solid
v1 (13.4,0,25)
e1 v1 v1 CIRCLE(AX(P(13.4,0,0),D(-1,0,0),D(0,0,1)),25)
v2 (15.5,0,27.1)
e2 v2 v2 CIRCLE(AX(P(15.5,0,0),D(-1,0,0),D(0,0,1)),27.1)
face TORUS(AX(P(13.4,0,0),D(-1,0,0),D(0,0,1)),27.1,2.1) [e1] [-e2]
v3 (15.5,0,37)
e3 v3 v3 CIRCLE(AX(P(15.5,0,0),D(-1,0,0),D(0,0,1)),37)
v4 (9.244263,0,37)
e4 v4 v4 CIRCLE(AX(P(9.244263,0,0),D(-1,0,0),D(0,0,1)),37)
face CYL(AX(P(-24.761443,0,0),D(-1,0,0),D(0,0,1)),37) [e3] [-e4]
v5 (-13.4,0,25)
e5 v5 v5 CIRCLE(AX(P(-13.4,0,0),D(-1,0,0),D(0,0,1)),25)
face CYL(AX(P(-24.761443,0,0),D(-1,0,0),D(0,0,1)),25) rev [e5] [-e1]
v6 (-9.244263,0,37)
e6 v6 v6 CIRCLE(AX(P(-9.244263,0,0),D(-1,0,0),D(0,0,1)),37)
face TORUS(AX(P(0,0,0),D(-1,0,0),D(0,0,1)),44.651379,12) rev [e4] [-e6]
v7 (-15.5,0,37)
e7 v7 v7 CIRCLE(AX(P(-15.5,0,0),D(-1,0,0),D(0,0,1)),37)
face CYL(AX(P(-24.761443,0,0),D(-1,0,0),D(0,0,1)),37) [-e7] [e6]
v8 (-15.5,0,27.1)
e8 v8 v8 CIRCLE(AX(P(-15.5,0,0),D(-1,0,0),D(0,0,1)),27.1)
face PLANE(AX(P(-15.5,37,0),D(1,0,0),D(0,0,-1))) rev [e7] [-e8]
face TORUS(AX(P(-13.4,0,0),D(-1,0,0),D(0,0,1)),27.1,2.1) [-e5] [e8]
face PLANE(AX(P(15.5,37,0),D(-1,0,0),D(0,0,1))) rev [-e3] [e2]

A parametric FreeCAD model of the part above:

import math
import FreeCAD as App
import Part
import Sketcher

V = App.Vector
Q = App.Units.Quantity

doc = App.newDocument("Part")
body = doc.addObject("PartDesign::Body", "Body")

# Sketch on XY plane
sketch1 = body.newObject("Sketcher::SketchObject", "Sketch")
sketch1.AttachmentSupport = (doc.getObject("XY_Plane"), [""])
sketch1.MapMode = "FlatFace"
sketch1.addGeometry(Part.LineSegment(V(15.5, 37, 0), V(9.2, 37, 0)), False)
sketch1.addGeometry(Part.ArcOfCircle(Part.Circle(V(0, 44.7, 0), V(0, 0, 1), 12), math.radians(-140), math.radians(-40)), False)
sketch1.addGeometry(Part.LineSegment(V(-9.2, 37, 0), V(-15.5, 37, 0)), False)
sketch1.addGeometry(Part.LineSegment(V(-15.5, 37, 0), V(-15.5, 27.1, 0)), False)
sketch1.addGeometry(Part.ArcOfCircle(Part.Circle(V(-13.4, 27.1, 0), V(0, 0, 1), 2.1), math.radians(-180), math.radians(-90)), False)
sketch1.addGeometry(Part.LineSegment(V(-13.4, 25, 0), V(13.4, 25, 0)), False)
sketch1.addGeometry(Part.ArcOfCircle(Part.Circle(V(13.4, 27.1, 0), V(0, 0, 1), 2.1), math.radians(-90), math.radians(0)), False)
sketch1.addGeometry(Part.LineSegment(V(15.5, 27.1, 0), V(15.5, 37, 0)), False)
sketch1.addConstraint(Sketcher.Constraint("Coincident", 0, 2, 1, 2))
sketch1.addConstraint(Sketcher.Constraint("Coincident", 1, 1, 2, 1))
sketch1.addConstraint(Sketcher.Constraint("Coincident", 2, 2, 3, 1))
sketch1.addConstraint(Sketcher.Constraint("Tangent", 3, 2, 4, 1))
sketch1.addConstraint(Sketcher.Constraint("Tangent", 4, 2, 5, 1))
sketch1.addConstraint(Sketcher.Constraint("Tangent", 5, 2, 6, 1))
sketch1.addConstraint(Sketcher.Constraint("Tangent", 6, 2, 7, 1))
sketch1.addConstraint(Sketcher.Constraint("Coincident", 7, 2, 0, 1))
sketch1.addConstraint(Sketcher.Constraint("Horizontal", 0))
sketch1.addConstraint(Sketcher.Constraint("Horizontal", 2))
sketch1.addConstraint(Sketcher.Constraint("Vertical", 3))
sketch1.addConstraint(Sketcher.Constraint("Horizontal", 5))
sketch1.addConstraint(Sketcher.Constraint("Vertical", 7))
sketch1.addConstraint(Sketcher.Constraint("Equal", 4, 6))
sketch1.addConstraint(Sketcher.Constraint("Symmetric", 0, 2, 1, 1, -2))
sketch1.addConstraint(Sketcher.Constraint("Equal", 0, 2))
sketch1.addConstraint(Sketcher.Constraint("Radius", 1, Q("12 mm")))
sketch1.addConstraint(Sketcher.Constraint("Radius", 4, Q("2.1 mm")))
sketch1.addConstraint(Sketcher.Constraint("DistanceX", 5, 1, 5, 2, Q("26.8 mm")))
sketch1.addConstraint(Sketcher.Constraint("DistanceY", 3, 2, 3, 1, Q("9.9 mm")))
sketch1.addConstraint(Sketcher.Constraint("DistanceY", -1, 1, 0, 2, Q("37 mm")))
sketch1.addConstraint(Sketcher.Constraint("DistanceX", 0, 2, 0, 1, Q("6.255737 mm")))
revolution = body.newObject("PartDesign::Revolution", "Revolution")
revolution.Profile = sketch1
revolution.ReferenceAxis = (sketch1, ["H_Axis"])
revolution.Angle = 360

doc.recompute()
